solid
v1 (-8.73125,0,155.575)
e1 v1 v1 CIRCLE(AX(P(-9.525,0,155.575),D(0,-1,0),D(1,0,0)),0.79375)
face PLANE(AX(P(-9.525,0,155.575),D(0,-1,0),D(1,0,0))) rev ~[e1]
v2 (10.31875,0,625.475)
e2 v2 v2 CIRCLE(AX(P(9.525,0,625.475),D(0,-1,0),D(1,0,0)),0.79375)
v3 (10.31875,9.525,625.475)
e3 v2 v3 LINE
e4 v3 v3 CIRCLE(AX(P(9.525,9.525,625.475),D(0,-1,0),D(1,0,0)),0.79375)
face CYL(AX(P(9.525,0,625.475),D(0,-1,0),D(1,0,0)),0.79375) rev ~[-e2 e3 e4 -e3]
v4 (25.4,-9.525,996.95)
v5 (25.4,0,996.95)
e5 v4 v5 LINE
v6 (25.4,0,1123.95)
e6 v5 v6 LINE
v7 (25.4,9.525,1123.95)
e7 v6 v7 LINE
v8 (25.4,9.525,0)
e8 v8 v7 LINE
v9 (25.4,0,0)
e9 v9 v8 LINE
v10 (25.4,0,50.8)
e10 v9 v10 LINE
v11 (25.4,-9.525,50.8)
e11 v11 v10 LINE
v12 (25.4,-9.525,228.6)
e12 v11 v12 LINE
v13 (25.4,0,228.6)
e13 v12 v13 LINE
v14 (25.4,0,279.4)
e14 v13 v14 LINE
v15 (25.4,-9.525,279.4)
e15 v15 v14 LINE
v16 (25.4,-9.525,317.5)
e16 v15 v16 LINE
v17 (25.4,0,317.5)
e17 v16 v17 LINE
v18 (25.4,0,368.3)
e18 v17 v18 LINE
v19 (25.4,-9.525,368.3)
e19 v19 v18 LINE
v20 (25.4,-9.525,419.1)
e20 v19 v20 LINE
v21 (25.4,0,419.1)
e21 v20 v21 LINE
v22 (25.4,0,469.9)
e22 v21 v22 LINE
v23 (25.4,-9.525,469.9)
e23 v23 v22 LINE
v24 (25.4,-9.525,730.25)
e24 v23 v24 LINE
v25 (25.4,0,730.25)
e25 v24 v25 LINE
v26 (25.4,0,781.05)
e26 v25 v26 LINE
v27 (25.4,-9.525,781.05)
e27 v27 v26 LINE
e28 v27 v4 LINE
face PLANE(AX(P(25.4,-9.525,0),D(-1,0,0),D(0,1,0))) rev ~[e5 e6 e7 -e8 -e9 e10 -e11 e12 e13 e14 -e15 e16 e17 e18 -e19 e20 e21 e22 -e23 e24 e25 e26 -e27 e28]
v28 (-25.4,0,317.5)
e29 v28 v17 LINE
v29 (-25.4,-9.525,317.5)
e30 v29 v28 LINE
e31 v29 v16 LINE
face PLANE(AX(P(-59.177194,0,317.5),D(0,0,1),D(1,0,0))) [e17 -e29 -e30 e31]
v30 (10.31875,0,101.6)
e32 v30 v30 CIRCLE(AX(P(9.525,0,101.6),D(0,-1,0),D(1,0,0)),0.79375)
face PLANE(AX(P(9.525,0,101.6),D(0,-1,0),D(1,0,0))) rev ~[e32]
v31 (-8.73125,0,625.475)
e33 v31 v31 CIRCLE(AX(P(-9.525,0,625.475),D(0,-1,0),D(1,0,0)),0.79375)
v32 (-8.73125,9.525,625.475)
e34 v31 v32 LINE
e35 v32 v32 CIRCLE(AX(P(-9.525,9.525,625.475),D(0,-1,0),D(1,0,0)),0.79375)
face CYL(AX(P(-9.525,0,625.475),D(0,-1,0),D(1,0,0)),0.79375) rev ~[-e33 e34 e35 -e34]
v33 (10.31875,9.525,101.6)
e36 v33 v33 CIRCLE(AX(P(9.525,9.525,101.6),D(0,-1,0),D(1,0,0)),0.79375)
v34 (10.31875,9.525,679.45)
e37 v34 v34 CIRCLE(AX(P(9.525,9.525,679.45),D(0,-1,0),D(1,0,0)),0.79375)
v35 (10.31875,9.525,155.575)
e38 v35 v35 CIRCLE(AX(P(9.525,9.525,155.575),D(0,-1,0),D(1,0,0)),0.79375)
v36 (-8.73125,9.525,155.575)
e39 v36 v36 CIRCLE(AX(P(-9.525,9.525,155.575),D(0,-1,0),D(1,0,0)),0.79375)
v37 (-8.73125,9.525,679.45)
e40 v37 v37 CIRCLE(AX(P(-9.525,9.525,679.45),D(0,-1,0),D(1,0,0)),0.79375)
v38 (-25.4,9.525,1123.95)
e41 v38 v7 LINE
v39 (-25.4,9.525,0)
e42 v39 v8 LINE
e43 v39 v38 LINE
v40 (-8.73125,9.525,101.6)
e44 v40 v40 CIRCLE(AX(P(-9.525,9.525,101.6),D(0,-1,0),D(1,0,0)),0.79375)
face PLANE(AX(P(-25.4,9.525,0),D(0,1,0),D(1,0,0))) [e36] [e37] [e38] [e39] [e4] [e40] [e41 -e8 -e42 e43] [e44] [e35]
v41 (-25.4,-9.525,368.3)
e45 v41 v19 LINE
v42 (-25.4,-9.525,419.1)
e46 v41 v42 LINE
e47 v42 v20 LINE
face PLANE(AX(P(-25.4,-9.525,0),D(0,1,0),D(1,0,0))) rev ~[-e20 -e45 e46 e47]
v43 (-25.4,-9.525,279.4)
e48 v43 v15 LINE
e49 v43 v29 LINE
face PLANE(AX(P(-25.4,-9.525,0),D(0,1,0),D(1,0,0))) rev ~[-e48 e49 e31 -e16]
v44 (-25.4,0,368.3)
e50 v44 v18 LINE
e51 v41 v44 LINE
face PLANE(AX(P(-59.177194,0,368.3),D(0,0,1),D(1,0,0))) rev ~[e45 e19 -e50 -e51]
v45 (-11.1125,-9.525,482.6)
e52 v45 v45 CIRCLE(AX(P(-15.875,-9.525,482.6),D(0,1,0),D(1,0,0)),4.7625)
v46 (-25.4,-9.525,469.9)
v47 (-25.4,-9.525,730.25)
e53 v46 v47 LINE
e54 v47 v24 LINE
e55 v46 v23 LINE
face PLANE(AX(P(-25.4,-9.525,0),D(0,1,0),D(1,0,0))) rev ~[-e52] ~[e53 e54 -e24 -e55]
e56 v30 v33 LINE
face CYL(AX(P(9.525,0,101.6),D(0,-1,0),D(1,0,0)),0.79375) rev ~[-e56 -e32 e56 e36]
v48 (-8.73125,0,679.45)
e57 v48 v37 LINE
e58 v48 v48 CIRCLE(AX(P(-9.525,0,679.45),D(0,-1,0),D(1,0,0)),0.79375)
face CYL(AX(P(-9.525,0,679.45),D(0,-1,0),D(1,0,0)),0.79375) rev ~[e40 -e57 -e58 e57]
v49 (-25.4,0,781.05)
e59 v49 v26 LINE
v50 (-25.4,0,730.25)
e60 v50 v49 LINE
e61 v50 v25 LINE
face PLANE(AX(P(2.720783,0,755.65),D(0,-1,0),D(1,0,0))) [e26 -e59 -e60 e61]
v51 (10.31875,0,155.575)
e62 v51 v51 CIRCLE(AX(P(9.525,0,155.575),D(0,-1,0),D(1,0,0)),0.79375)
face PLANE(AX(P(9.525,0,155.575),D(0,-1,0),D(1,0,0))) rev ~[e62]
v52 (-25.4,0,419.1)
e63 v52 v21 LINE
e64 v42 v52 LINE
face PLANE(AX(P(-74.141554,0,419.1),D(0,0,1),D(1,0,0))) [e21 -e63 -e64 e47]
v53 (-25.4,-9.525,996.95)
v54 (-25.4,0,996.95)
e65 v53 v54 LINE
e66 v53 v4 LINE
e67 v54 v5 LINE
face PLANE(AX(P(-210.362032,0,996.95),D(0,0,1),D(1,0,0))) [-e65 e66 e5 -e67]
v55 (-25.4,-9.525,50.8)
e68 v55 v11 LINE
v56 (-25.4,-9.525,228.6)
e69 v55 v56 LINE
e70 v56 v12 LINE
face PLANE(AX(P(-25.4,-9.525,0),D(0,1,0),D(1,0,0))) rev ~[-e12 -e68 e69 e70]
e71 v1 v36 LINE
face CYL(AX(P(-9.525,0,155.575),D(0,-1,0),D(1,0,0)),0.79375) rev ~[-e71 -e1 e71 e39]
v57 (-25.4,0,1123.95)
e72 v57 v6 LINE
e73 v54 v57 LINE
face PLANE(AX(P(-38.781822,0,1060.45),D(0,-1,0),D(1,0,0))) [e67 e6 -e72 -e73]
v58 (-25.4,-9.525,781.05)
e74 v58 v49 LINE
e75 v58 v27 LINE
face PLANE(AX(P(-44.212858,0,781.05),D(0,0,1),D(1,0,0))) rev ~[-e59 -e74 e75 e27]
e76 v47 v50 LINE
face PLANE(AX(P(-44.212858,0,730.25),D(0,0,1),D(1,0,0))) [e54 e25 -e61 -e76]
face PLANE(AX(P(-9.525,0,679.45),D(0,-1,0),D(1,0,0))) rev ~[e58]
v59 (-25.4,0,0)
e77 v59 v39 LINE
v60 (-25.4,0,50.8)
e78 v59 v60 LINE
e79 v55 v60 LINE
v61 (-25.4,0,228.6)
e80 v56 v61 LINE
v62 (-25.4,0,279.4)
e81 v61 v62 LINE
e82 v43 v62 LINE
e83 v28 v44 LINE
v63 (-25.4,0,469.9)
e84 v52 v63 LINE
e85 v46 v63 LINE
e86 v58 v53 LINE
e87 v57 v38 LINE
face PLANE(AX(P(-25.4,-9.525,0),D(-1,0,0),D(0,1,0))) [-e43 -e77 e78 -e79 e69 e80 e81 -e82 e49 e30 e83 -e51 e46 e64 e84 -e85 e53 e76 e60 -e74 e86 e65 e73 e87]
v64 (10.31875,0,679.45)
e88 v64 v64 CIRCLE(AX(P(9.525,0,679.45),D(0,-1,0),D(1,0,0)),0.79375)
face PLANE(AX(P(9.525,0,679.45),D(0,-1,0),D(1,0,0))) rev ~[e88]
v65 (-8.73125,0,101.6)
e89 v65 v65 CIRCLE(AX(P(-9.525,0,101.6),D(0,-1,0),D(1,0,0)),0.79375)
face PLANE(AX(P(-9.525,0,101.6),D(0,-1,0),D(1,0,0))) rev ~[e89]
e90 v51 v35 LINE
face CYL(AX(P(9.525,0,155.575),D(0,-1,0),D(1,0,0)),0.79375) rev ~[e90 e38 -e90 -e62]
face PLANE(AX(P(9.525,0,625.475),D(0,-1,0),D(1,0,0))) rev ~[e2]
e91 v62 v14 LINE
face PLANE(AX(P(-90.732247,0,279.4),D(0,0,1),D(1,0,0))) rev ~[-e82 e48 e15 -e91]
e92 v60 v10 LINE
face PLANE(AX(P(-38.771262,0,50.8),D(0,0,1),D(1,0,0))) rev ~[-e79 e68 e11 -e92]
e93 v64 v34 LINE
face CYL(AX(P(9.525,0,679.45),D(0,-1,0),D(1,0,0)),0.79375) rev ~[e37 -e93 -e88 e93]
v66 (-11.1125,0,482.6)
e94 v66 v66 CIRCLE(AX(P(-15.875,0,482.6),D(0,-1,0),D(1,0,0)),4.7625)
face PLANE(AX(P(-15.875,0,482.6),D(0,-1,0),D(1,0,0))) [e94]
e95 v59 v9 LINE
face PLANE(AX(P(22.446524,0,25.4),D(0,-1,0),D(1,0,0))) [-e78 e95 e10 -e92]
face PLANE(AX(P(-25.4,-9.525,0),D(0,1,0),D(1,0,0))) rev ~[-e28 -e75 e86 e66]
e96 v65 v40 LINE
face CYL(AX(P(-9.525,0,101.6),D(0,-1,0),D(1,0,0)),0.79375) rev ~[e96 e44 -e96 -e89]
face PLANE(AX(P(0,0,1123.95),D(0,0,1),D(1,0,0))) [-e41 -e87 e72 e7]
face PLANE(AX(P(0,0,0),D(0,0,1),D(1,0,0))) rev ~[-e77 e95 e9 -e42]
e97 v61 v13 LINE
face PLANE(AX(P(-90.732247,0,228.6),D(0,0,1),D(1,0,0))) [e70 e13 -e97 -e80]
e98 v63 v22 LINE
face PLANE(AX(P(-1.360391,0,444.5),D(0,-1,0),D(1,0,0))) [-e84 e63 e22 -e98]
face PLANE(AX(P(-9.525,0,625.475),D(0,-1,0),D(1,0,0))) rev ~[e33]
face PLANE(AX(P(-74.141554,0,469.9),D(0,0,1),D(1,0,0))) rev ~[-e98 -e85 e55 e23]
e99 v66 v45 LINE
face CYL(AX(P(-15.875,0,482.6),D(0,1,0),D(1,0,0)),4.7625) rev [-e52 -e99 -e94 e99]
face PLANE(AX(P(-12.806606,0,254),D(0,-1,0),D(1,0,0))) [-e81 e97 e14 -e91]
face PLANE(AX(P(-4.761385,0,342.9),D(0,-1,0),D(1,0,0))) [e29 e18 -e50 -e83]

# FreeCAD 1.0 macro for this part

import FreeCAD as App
import Part
import Sketcher
Q = App.Units.Quantity

doc = App.newDocument("Part")
params = doc.addObject("Spreadsheet::Sheet", "Params")
for row, (alias, value) in enumerate([
    ("sketch1_width", "2 in"),
    ("sketch1_height", "0.75 in"),
    ("pad1_length", "44.25 in"),
    ("sketch2_height", "2 in"),
    ("sketch2_height2", "5 in"),
    ("pocket1_length", "1 in"),
    ("sketch3_diameter", "0.0625 in"),
    ("pocket2_length", "1 in"),
    ("sketch4_diameter", "0.375 in"),
    ("pocket3_length", "1 in"),
], start=1):
    params.set(f"A{row}", alias)
    params.set(f"B{row}", "=" + value)
    params.setAlias(f"B{row}", alias)

body = doc.addObject("PartDesign::Body", "Body")

# Sketch on XY plane
sketch1 = body.newObject("Sketcher::SketchObject", "Sketch")
sketch1.AttachmentSupport = (doc.getObject("XY_Plane"), [""])
sketch1.MapMode = "FlatFace"
sketch1.addGeometry([
    Part.LineSegment(App.Vector(-25, 10, 0), App.Vector(-25, -10, 0)),
    Part.LineSegment(App.Vector(-25, -10, 0), App.Vector(25, -10, 0)),
    Part.LineSegment(App.Vector(25, -10, 0), App.Vector(25, 10, 0)),
    Part.LineSegment(App.Vector(25, 10, 0), App.Vector(-25, 10, 0)),
], False)
sketch1.addConstraint([
    Sketcher.Constraint("Coincident", 0, 2, 1, 1),
    Sketcher.Constraint("Coincident", 1, 2, 2, 1),
    Sketcher.Constraint("Coincident", 2, 2, 3, 1),
    Sketcher.Constraint("Coincident", 3, 2, 0, 1),
    Sketcher.Constraint("Vertical", 0),
    Sketcher.Constraint("Horizontal", 1),
    Sketcher.Constraint("Vertical", 2),
    Sketcher.Constraint("Horizontal", 3),
    Sketcher.Constraint("Symmetric", 0, 2, 2, 2, -1, 1),
    Sketcher.Constraint("DistanceX", 1, 1, 1, 2, Q("2 in")),
    Sketcher.Constraint("DistanceY", 0, 2, 0, 1, Q("0.75 in")),
])
sketch1.setExpression("Constraints[9]", "Params.sketch1_width")
sketch1.setExpression("Constraints[10]", "Params.sketch1_height")
pad1 = body.newObject("PartDesign::Pad", "Pad")
pad1.Profile = sketch1
pad1.setExpression("Length", "Params.pad1_length")

# Sketch on XZ plane
sketch2 = body.newObject("Sketcher::SketchObject", "Sketch001")
sketch2.AttachmentSupport = (doc.getObject("XZ_Plane"), [""])
sketch2.MapMode = "FlatFace"
sketch2.addGeometry([
    Part.LineSegment(App.Vector(-39, 51, 0), App.Vector(-39, 0, 0)),  # 0
    Part.LineSegment(App.Vector(-39, 0, 0), App.Vector(84, 0, 0)),  # 1
    Part.LineSegment(App.Vector(84, 0, 0), App.Vector(84, 51, 0)),  # 2
    Part.LineSegment(App.Vector(84, 51, 0), App.Vector(-39, 51, 0)),  # 3
    Part.LineSegment(App.Vector(-59, 368, 0), App.Vector(-59, 318, 0)),  # 4
    Part.LineSegment(App.Vector(-59, 318, 0), App.Vector(50, 318, 0)),  # 5
    Part.LineSegment(App.Vector(50, 318, 0), App.Vector(50, 368, 0)),  # 6
    Part.LineSegment(App.Vector(50, 368, 0), App.Vector(-59, 368, 0)),  # 7
    Part.LineSegment(App.Vector(-44, 781, 0), App.Vector(-44, 730, 0)),  # 8
    Part.LineSegment(App.Vector(-44, 730, 0), App.Vector(50, 730, 0)),  # 9
    Part.LineSegment(App.Vector(50, 730, 0), App.Vector(50, 781, 0)),  # 10
    Part.LineSegment(App.Vector(50, 781, 0), App.Vector(-44, 781, 0)),  # 11
    Part.LineSegment(App.Vector(-74, 470, 0), App.Vector(-74, 419, 0)),  # 12
    Part.LineSegment(App.Vector(-74, 419, 0), App.Vector(71, 419, 0)),  # 13
    Part.LineSegment(App.Vector(71, 419, 0), App.Vector(71, 470, 0)),  # 14
    Part.LineSegment(App.Vector(71, 470, 0), App.Vector(-74, 470, 0)),  # 15
    Part.LineSegment(App.Vector(-210, 1124, 0), App.Vector(-210, 997, 0)),  # 16
    Part.LineSegment(App.Vector(-210, 997, 0), App.Vector(133, 997, 0)),  # 17
    Part.LineSegment(App.Vector(133, 997, 0), App.Vector(133, 1124, 0)),  # 18
    Part.LineSegment(App.Vector(133, 1124, 0), App.Vector(-210, 1124, 0)),  # 19
    Part.LineSegment(App.Vector(-91, 279, 0), App.Vector(-91, 229, 0)),  # 20
    Part.LineSegment(App.Vector(-91, 229, 0), App.Vector(65, 229, 0)),  # 21
    Part.LineSegment(App.Vector(65, 229, 0), App.Vector(65, 279, 0)),  # 22
    Part.LineSegment(App.Vector(65, 279, 0), App.Vector(-91, 279, 0)),  # 23
], False)
sketch2.addConstraint([
    Sketcher.Constraint("Coincident", 0, 2, 1, 1),
    Sketcher.Constraint("Coincident", 1, 2, 2, 1),
    Sketcher.Constraint("Coincident", 2, 2, 3, 1),
    Sketcher.Constraint("Coincident", 3, 2, 0, 1),
    Sketcher.Constraint("Coincident", 4, 2, 5, 1),
    Sketcher.Constraint("Coincident", 5, 2, 6, 1),
    Sketcher.Constraint("Coincident", 6, 2, 7, 1),
    Sketcher.Constraint("Coincident", 7, 2, 4, 1),
    Sketcher.Constraint("Coincident", 8, 2, 9, 1),
    Sketcher.Constraint("Coincident", 9, 2, 10, 1),
    Sketcher.Constraint("Coincident", 10, 2, 11, 1),
    Sketcher.Constraint("Coincident", 11, 2, 8, 1),
    Sketcher.Constraint("Coincident", 12, 2, 13, 1),
    Sketcher.Constraint("Coincident", 13, 2, 14, 1),
    Sketcher.Constraint("Coincident", 14, 2, 15, 1),
    Sketcher.Constraint("Coincident", 15, 2, 12, 1),
    Sketcher.Constraint("Coincident", 16, 2, 17, 1),
    Sketcher.Constraint("Coincident", 17, 2, 18, 1),
    Sketcher.Constraint("Coincident", 18, 2, 19, 1),
    Sketcher.Constraint("Coincident", 19, 2, 16, 1),
    Sketcher.Constraint("Coincident", 20, 2, 21, 1),
    Sketcher.Constraint("Coincident", 21, 2, 22, 1),
    Sketcher.Constraint("Coincident", 22, 2, 23, 1),
    Sketcher.Constraint("Coincident", 23, 2, 20, 1),
    Sketcher.Constraint("Vertical", 0),
    Sketcher.Constraint("Horizontal", 1),
    Sketcher.Constraint("Vertical", 2),
    Sketcher.Constraint("Horizontal", 3),
    Sketcher.Constraint("Vertical", 4),
    Sketcher.Constraint("Horizontal", 5),
    Sketcher.Constraint("Vertical", 6),
    Sketcher.Constraint("Horizontal", 7),
    Sketcher.Constraint("Vertical", 8),
    Sketcher.Constraint("Horizontal", 9),
    Sketcher.Constraint("Vertical", 10),
    Sketcher.Constraint("Horizontal", 11),
    Sketcher.Constraint("Vertical", 12),
    Sketcher.Constraint("Horizontal", 13),
    Sketcher.Constraint("Vertical", 14),
    Sketcher.Constraint("Horizontal", 15),
    Sketcher.Constraint("Vertical", 16),
    Sketcher.Constraint("Horizontal", 17),
    Sketcher.Constraint("Vertical", 18),
    Sketcher.Constraint("Horizontal", 19),
    Sketcher.Constraint("Vertical", 20),
    Sketcher.Constraint("Horizontal", 21),
    Sketcher.Constraint("Vertical", 22),
    Sketcher.Constraint("Horizontal", 23),
    Sketcher.Constraint("PointOnObject", 0, 2, -1),
    Sketcher.Constraint("Vertical", 6, 2, 9, 2),
    Sketcher.Constraint("Equal", 2, 4),
    Sketcher.Constraint("Equal", 6, 8),
    Sketcher.Constraint("Equal", 10, 12),
    Sketcher.Constraint("Equal", 14, 20),
    Sketcher.Constraint("DistanceY", 0, 2, 0, 1, Q("2 in")),
    Sketcher.Constraint("DistanceY", 16, 2, 16, 1, Q("5 in")),
    Sketcher.Constraint("DistanceY", -1, 1, 20, 2, Q("9 in")),
    Sketcher.Constraint("DistanceY", 7, 2, 12, 2, Q("2 in")),
    Sketcher.Constraint("DistanceY", -1, 1, 4, 2, Q("12.5 in")),
    Sketcher.Constraint("DistanceY", 11, 2, 16, 2, Q("8.5 in")),
    Sketcher.Constraint("DistanceY", -1, 1, 8, 2, Q("28.75 in")),
    Sketcher.Constraint("DistanceX", 13, 1, 13, 2, Q("5.7308002 in")),
    Sketcher.Constraint("DistanceX", 22, 2, 13, 2, Q("0.2480998 in")),
    Sketcher.Constraint("DistanceX", 5, 1, 5, 2, Q("108.831619 mm")),
    Sketcher.Constraint("DistanceX", 9, 1, 9, 2, Q("93.867282 mm")),
    Sketcher.Constraint("DistanceX", 17, 1, 17, 2, Q("343.160421 mm")),
    Sketcher.Constraint("DistanceX", 1, 1, 1, 2, Q("122.435573 mm")),
    Sketcher.Constraint("DistanceX", 21, 1, 21, 2, Q("155.851283 mm")),
    Sketcher.Constraint("DistanceX", -1, 1, 1, 2, Q("83.66431 mm")),
    Sketcher.Constraint("DistanceX", -1, 1, 13, 2, Q("71.420772 mm")),
    Sketcher.Constraint("DistanceX", -1, 1, 17, 2, Q("132.798388 mm")),
    Sketcher.Constraint("DistanceX", 4, 2, 3, 2, Q("20.405932 mm")),
])
sketch2.setExpression("Constraints[54]", "Params.sketch2_height")
sketch2.setExpression("Constraints[55]", "Params.sketch2_height2")
pocket1 = body.newObject("PartDesign::Pocket", "Pocket")
pocket1.Profile = sketch2
pocket1.setExpression("Length", "Params.pocket1_length")
pocket1.Reversed = True

# Sketch on XZ plane
sketch3 = body.newObject("Sketcher::SketchObject", "Sketch002")
sketch3.AttachmentSupport = (doc.getObject("XZ_Plane"), [""])
sketch3.MapMode = "FlatFace"
sketch3.addGeometry([
    Part.Circle(App.Vector(9.5, 101.6, 0), App.Vector(0, 0, 1), 0.8),  # 0
    Part.Circle(App.Vector(9.5, 155.6, 0), App.Vector(0, 0, 1), 0.8),  # 1
    Part.Circle(App.Vector(9.5, 625.5, 0), App.Vector(0, 0, 1), 0.8),  # 2
    Part.Circle(App.Vector(9.5, 679.5, 0), App.Vector(0, 0, 1), 0.8),  # 3
    Part.Circle(App.Vector(-9.5, 625.5, 0), App.Vector(0, 0, 1), 0.8),  # 4
    Part.Circle(App.Vector(-9.5, 679.5, 0), App.Vector(0, 0, 1), 0.8),  # 5
    Part.Circle(App.Vector(-9.5, 101.6, 0), App.Vector(0, 0, 1), 0.8),  # 6
    Part.Circle(App.Vector(-9.5, 155.6, 0), App.Vector(0, 0, 1), 0.8),  # 7
], False)
sketch3.addConstraint([
    Sketcher.Constraint("Equal", 0, 1),
    Sketcher.Constraint("Equal", 1, 2),
    Sketcher.Constraint("Equal", 2, 3),
    Sketcher.Constraint("Equal", 3, 4),
    Sketcher.Constraint("Equal", 4, 5),
    Sketcher.Constraint("Equal", 5, 6),
    Sketcher.Constraint("Equal", 6, 7),
    Sketcher.Constraint("Symmetric", 2, 3, 4, 3, -2),
    Sketcher.Constraint("Symmetric", 3, 3, 5, 3, -2),
    Sketcher.Constraint("Symmetric", 0, 3, 6, 3, -2),
    Sketcher.Constraint("Symmetric", 1, 3, 7, 3, -2),
    Sketcher.Constraint("Vertical", 0, 3, 1, 3),
    Sketcher.Constraint("Vertical", 1, 3, 2, 3),
    Sketcher.Constraint("Vertical", 2, 3, 3, 3),
    Sketcher.Constraint("Diameter", 0, Q("0.0625 in")),
    Sketcher.Constraint("DistanceY", -1, 1, 0, 3, Q("4 in")),
    Sketcher.Constraint("DistanceY", 1, 3, 2, 3, Q("18.5 in")),
    Sketcher.Constraint("DistanceY", -1, 1, 3, 3, Q("26.75 in")),
    Sketcher.Constraint("DistanceX", 4, 3, 2, 3, Q("0.75 in")),
    Sketcher.Constraint("DistanceY", -1, 1, 1, 3, Q("6.125 in")),
])
sketch3.setExpression("Constraints[14]", "Params.sketch3_diameter")
pocket2 = body.newObject("PartDesign::Pocket", "Pocket001")
pocket2.Profile = sketch3
pocket2.setExpression("Length", "Params.pocket2_length")

# Sketch on XZ plane
sketch4 = body.newObject("Sketcher::SketchObject", "Sketch003")
sketch4.AttachmentSupport = (doc.getObject("XZ_Plane"), [""])
sketch4.MapMode = "FlatFace"
sketch4.addGeometry([
    Part.Circle(App.Vector(15.9, 254, 0), App.Vector(0, 0, 1), 4.8),
    Part.Circle(App.Vector(-15.9, 254, 0), App.Vector(0, 0, 1), 4.8),
    Part.Circle(App.Vector(-15.9, 482.6, 0), App.Vector(0, 0, 1), 4.8),
], False)
sketch4.addConstraint([
    Sketcher.Constraint("Equal", 0, 1),
    Sketcher.Constraint("Equal", 1, 2),
    Sketcher.Constraint("Symmetric", 0, 3, 1, 3, -2),
    Sketcher.Constraint("Vertical", 1, 3, 2, 3),
    Sketcher.Constraint("Diameter", 0, Q("0.375 in")),
    Sketcher.Constraint("DistanceY", -1, 1, 0, 3, Q("10 in")),
    Sketcher.Constraint("DistanceY", -1, 1, 2, 3, Q("19 in")),
    Sketcher.Constraint("DistanceX", 1, 3, 0, 3, Q("1.25 in")),
])
sketch4.setExpression("Constraints[4]", "Params.sketch4_diameter")
pocket3 = body.newObject("PartDesign::Pocket", "Pocket002")
pocket3.Profile = sketch4
pocket3.setExpression("Length", "Params.pocket3_length")
pocket3.Reversed = True

doc.recompute()
